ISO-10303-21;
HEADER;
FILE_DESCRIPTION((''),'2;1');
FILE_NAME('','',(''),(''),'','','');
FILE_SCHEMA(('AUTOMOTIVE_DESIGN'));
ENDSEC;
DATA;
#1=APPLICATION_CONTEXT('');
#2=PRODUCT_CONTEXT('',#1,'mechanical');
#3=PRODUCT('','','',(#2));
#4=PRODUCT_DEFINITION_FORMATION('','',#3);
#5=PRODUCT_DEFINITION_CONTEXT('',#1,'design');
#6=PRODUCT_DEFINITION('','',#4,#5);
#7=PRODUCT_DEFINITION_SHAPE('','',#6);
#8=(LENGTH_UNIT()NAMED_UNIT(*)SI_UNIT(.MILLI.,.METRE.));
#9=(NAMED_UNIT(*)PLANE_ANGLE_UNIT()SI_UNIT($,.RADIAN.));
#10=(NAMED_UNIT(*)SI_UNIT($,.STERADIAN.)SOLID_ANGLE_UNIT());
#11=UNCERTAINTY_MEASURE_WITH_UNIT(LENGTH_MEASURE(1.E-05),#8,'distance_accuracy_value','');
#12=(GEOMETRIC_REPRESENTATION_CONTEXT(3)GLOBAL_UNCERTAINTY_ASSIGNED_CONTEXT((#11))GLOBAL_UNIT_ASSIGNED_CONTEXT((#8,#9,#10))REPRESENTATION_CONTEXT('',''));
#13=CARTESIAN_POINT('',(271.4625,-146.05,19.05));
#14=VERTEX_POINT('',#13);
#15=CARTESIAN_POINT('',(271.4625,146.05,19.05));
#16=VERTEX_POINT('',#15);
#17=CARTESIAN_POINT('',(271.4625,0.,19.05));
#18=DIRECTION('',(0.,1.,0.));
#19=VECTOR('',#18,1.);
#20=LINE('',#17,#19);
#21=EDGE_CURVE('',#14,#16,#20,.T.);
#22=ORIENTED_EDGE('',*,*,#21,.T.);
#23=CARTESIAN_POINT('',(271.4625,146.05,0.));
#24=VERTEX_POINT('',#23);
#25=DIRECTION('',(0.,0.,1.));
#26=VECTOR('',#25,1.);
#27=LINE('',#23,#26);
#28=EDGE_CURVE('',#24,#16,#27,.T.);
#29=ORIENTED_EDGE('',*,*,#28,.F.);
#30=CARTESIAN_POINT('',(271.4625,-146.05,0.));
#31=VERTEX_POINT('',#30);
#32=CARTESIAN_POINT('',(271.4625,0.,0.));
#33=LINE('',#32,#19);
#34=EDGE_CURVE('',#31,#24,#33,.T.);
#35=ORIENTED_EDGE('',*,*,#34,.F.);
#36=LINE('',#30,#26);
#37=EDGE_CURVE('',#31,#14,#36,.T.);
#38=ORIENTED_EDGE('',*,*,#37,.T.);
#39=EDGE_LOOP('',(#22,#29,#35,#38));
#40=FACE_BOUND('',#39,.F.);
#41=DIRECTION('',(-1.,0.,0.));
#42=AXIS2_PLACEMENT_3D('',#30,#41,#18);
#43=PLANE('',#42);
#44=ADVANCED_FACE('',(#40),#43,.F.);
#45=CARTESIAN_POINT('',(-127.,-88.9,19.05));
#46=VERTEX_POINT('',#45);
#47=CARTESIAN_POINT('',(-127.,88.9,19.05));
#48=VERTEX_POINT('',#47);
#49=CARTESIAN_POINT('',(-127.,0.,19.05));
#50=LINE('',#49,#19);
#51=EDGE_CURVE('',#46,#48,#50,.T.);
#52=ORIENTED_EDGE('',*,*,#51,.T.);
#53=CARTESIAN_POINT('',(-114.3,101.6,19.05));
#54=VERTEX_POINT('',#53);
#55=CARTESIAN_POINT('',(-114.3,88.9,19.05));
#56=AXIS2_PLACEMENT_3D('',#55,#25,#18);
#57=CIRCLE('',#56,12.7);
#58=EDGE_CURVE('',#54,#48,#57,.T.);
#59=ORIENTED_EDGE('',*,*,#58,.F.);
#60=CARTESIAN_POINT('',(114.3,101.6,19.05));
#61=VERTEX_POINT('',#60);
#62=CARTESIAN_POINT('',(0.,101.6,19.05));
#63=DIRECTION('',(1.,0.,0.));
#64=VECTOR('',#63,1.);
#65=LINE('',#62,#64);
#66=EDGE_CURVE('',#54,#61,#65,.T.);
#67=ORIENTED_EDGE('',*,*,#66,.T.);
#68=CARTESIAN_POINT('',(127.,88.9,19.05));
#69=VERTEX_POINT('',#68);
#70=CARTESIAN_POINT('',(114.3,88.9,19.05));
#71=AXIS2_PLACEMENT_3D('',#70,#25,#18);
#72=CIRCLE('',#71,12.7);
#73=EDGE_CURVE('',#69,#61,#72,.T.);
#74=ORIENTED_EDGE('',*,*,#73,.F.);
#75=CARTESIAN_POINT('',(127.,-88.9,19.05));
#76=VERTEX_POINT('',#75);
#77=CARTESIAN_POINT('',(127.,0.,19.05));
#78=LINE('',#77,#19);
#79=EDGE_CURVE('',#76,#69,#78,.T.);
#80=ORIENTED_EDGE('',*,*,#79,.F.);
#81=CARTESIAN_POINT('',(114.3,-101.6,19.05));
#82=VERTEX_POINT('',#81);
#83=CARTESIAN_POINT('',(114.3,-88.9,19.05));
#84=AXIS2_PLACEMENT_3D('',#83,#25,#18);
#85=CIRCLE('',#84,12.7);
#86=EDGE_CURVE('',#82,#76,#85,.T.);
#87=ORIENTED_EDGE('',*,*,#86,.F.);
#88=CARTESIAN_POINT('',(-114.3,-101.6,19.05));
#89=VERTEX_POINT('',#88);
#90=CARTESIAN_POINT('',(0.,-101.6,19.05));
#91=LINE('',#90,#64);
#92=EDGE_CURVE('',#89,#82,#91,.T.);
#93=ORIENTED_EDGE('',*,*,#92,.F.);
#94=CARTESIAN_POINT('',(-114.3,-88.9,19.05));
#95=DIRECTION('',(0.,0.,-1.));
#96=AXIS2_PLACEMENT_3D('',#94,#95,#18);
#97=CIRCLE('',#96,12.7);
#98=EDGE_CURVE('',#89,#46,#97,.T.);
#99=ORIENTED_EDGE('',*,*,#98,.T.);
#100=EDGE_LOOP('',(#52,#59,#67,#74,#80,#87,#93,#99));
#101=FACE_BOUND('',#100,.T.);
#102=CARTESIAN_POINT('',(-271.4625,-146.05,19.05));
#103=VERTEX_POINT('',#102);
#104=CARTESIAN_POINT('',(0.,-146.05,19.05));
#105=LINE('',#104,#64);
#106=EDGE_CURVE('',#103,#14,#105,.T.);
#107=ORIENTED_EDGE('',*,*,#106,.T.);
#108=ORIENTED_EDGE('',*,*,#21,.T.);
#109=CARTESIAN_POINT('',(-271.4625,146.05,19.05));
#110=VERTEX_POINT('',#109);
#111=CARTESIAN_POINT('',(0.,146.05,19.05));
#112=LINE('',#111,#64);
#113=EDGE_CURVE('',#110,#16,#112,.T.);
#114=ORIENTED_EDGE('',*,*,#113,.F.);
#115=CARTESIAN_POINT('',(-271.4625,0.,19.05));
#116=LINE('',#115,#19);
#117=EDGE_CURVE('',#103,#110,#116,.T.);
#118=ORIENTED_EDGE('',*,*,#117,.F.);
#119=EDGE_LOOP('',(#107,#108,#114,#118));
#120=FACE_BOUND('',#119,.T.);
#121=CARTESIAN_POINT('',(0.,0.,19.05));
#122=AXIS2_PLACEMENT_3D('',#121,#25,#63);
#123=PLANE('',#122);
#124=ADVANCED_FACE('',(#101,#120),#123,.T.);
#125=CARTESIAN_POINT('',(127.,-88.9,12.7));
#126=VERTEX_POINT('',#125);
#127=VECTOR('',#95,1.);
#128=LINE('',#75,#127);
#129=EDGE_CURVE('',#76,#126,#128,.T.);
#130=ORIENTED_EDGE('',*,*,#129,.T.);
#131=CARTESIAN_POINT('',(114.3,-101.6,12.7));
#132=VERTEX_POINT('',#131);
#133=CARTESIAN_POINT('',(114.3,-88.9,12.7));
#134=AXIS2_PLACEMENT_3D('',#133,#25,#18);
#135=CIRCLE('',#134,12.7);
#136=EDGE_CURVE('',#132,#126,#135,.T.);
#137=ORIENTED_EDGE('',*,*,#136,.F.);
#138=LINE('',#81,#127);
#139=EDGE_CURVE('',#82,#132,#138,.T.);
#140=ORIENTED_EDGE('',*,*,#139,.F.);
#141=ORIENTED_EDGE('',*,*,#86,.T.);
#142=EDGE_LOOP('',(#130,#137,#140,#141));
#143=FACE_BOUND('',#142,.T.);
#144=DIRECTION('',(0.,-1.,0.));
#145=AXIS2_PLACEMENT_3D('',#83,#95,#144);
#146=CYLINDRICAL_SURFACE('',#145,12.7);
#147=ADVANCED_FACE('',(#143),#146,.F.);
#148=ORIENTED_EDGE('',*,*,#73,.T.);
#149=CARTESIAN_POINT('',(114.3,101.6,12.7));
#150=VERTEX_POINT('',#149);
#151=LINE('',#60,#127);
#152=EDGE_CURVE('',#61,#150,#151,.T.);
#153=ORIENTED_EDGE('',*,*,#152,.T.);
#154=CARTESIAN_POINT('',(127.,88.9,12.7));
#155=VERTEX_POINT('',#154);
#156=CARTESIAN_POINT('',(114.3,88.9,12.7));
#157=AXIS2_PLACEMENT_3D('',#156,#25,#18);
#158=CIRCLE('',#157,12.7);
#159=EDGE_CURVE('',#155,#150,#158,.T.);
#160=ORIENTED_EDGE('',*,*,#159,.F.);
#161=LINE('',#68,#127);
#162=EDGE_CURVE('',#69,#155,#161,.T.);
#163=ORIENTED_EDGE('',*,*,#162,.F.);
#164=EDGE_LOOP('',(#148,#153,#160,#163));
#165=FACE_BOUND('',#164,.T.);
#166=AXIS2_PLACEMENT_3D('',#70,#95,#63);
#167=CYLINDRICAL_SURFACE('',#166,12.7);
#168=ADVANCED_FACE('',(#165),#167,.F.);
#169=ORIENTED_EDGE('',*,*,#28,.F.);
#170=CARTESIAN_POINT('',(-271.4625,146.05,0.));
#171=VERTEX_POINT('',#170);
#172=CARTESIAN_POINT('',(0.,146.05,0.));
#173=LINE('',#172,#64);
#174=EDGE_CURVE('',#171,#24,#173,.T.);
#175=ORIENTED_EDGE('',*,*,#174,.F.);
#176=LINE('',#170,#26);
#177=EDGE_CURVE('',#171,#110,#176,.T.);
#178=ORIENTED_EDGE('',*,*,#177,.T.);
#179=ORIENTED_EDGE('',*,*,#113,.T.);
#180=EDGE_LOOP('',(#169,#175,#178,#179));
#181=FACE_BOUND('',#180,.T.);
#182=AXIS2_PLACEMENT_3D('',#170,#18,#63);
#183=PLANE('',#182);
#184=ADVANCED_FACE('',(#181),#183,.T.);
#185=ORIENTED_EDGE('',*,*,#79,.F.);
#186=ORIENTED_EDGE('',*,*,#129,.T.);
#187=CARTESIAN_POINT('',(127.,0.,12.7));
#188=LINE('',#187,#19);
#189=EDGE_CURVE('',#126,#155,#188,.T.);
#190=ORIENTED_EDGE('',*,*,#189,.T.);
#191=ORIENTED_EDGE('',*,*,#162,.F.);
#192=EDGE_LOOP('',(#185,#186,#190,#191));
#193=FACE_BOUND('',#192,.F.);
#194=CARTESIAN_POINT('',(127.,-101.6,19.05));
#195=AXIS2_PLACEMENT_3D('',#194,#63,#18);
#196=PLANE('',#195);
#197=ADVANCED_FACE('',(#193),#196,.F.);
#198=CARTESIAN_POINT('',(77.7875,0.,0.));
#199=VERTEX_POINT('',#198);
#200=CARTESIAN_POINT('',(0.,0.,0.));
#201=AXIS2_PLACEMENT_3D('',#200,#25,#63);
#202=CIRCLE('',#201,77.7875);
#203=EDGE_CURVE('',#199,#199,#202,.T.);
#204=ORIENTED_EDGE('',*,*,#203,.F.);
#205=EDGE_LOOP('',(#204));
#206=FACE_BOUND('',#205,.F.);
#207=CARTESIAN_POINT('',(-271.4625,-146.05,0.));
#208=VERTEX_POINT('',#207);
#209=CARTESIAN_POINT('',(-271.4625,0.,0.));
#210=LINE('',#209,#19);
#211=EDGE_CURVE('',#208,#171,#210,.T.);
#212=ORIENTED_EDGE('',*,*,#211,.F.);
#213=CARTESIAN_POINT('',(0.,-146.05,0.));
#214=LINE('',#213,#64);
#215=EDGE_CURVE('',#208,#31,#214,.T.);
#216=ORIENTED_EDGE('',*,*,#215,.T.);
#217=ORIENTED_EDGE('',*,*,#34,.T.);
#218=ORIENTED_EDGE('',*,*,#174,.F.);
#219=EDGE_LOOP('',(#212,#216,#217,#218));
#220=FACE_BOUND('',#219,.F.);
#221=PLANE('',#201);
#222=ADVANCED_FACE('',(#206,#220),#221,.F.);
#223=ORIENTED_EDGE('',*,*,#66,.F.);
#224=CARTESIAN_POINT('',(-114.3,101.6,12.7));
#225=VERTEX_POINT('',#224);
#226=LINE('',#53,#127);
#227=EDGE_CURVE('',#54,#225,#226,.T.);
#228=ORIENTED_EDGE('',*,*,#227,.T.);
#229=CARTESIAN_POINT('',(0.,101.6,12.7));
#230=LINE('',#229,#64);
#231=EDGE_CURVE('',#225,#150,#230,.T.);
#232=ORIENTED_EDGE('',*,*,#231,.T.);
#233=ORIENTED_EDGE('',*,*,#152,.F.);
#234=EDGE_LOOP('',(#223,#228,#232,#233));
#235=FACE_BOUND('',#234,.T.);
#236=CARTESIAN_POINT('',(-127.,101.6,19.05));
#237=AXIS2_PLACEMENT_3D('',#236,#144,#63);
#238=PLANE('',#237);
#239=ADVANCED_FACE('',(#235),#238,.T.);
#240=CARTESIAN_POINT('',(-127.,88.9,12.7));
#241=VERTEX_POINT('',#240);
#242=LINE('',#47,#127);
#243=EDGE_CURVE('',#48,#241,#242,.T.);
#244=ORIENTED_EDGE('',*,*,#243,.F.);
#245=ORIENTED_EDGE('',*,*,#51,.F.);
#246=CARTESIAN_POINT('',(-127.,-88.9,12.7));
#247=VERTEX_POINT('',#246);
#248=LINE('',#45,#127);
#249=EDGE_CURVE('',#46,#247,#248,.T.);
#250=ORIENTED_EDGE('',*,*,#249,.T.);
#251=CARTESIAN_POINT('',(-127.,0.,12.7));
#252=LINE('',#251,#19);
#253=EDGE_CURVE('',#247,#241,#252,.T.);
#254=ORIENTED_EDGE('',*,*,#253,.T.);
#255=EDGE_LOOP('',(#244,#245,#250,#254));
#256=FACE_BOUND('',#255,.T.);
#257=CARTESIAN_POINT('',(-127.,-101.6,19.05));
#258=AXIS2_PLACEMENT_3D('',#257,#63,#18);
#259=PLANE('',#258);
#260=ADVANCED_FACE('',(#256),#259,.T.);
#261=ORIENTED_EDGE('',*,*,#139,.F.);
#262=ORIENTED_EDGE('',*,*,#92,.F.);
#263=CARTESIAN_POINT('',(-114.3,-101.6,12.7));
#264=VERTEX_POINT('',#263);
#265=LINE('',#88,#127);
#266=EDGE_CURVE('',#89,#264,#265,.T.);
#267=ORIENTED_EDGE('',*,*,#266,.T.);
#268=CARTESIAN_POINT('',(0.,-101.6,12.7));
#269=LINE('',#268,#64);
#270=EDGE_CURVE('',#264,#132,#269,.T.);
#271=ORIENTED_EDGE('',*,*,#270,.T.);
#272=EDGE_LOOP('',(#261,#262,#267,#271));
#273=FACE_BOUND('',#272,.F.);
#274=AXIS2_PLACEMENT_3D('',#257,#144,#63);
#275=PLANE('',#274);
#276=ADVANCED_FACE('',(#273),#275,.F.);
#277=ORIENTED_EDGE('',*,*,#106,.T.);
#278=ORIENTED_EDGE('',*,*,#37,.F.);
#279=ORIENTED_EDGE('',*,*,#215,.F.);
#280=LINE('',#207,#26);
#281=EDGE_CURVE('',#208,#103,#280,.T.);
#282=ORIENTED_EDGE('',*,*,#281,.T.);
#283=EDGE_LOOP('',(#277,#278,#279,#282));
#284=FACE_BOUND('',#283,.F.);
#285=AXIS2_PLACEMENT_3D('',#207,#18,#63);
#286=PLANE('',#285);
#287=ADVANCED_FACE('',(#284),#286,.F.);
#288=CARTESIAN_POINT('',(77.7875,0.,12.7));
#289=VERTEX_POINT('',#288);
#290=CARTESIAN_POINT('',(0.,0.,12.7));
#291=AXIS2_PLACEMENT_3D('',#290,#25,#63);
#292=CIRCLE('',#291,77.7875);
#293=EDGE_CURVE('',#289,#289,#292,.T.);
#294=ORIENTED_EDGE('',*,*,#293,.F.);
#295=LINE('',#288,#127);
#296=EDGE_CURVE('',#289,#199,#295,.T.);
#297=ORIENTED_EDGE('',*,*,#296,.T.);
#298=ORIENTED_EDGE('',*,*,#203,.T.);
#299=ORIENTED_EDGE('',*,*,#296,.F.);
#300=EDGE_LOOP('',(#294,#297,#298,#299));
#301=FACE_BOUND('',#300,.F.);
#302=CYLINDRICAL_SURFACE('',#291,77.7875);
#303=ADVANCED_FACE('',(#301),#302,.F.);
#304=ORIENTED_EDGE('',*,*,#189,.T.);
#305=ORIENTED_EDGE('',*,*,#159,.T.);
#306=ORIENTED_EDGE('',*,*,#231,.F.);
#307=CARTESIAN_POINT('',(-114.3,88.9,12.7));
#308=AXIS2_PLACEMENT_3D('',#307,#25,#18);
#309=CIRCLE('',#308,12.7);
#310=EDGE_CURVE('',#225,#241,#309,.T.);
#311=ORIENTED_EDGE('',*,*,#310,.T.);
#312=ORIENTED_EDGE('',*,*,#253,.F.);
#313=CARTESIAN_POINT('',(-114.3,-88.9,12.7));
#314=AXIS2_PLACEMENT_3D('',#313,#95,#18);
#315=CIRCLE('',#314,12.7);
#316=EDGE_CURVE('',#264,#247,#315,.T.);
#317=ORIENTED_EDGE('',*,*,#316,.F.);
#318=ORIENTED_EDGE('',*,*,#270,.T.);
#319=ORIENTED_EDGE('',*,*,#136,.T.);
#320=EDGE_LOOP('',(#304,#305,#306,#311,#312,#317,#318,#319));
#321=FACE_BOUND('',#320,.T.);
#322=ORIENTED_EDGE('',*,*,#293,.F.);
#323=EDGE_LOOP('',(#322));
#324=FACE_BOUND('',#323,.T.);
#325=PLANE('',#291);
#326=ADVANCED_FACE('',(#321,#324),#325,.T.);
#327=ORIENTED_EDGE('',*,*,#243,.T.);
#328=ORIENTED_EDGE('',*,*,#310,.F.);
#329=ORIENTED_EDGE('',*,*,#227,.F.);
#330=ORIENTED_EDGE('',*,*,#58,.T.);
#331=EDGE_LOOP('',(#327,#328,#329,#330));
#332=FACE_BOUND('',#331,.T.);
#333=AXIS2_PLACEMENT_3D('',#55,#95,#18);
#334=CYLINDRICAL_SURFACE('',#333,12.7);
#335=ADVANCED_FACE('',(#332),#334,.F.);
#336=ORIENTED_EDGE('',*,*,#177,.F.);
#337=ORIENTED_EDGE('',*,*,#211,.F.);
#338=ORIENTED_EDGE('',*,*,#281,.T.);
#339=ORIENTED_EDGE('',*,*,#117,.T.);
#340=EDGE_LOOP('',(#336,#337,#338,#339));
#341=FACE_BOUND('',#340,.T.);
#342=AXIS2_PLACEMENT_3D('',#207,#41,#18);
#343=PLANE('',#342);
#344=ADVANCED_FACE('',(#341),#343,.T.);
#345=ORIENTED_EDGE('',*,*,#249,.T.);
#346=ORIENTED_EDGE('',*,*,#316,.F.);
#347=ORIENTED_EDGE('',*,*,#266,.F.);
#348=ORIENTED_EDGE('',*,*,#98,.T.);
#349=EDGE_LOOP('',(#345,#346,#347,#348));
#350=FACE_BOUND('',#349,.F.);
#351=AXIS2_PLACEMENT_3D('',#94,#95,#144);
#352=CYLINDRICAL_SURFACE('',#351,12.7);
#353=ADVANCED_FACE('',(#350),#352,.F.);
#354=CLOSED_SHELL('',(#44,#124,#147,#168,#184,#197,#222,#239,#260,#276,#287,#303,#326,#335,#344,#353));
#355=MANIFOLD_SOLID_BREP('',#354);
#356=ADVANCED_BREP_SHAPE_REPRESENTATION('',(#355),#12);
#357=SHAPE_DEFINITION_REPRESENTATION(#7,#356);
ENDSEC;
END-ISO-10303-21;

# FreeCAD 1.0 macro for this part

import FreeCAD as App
import Part
import Sketcher

V = App.Vector
Q = App.Units.Quantity


def edges_at(feature, points):
    """Names of the edges that pass closest to the given points."""
    edges = feature.Shape.Edges
    near = lambda p: min(range(len(edges)), key=lambda i: edges[i].distToShape(Part.Vertex(*p))[0])
    return sorted({f"Edge{near(p) + 1}" for p in points})


def add_polygon(sketch, points):
    """Adds a closed chain of lines whose ends are joined by coincident constraints."""
    first, n = sketch.GeometryCount, len(points)
    for a, b in zip(points, points[1:] + points[:1]):
        sketch.addGeometry(Part.LineSegment(App.Vector(*a, 0), App.Vector(*b, 0)), False)
    for i in range(n):
        sketch.addConstraint(Sketcher.Constraint("Coincident", first + i, 2, first + (i + 1) % n, 1))

doc = App.newDocument("Part")
body = doc.addObject("PartDesign::Body", "Body")

# Sketch on XY plane
sketch1 = body.newObject("Sketcher::SketchObject", "Sketch")
sketch1.AttachmentSupport = (doc.getObject("XY_Plane"), [""])
sketch1.MapMode = "FlatFace"
add_polygon(sketch1, [(-271.4625, 146.05), (-271.4625, -146.05), (271.4625, -146.05), (271.4625, 146.05)])  # lines 0-3
sketch1.addConstraint(Sketcher.Constraint("Vertical", 0))
sketch1.addConstraint(Sketcher.Constraint("Horizontal", 1))
sketch1.addConstraint(Sketcher.Constraint("Vertical", 2))
sketch1.addConstraint(Sketcher.Constraint("Horizontal", 3))
sketch1.addConstraint(Sketcher.Constraint("Symmetric", 0, 2, 2, 2, -1, 1))
sketch1.addConstraint(Sketcher.Constraint("DistanceY", 0, 2, 0, 1, Q("11.5 in")))
sketch1.addConstraint(Sketcher.Constraint("DistanceX", 1, 1, 1, 2, Q("21.375 in")))
pad1 = body.newObject("PartDesign::Pad", "Pad")
pad1.Profile = sketch1
pad1.Length = Q("0.75 in")

# Sketch on XY plane
sketch2 = body.newObject("Sketcher::SketchObject", "Sketch001")
sketch2.AttachmentSupport = (doc.getObject("XY_Plane"), [""])
sketch2.MapMode = "FlatFace"
sketch2.AttachmentOffset = App.Placement(V(0, 0, 0.75 * 25.4), App.Rotation())
add_polygon(sketch2, [(-127, 101.6), (-127, -101.6), (127, -101.6), (127, 101.6)])  # lines 0-3
sketch2.addConstraint(Sketcher.Constraint("Vertical", 0))
sketch2.addConstraint(Sketcher.Constraint("Horizontal", 1))
sketch2.addConstraint(Sketcher.Constraint("Vertical", 2))
sketch2.addConstraint(Sketcher.Constraint("Horizontal", 3))
sketch2.addConstraint(Sketcher.Constraint("Symmetric", 0, 2, 2, 2, -1, 1))
sketch2.addConstraint(Sketcher.Constraint("DistanceX", 1, 1, 1, 2, Q("10 in")))
sketch2.addConstraint(Sketcher.Constraint("DistanceY", 0, 2, 0, 1, Q("8 in")))
pocket1 = body.newObject("PartDesign::Pocket", "Pocket")
pocket1.Profile = sketch2
pocket1.Length = Q("0.25 in")
doc.recompute()

fillet = body.newObject("PartDesign::Fillet", "Fillet")
fillet.Base = (pocket1, edges_at(pocket1, [
    (127, -101.6, 15.875),
    (-127, -101.6, 15.875),
    (-127, 101.6, 15.875),
    (127, 101.6, 15.875),
]))
fillet.Radius = Q("0.5 in")

# Sketch on XY plane
sketch3 = body.newObject("Sketcher::SketchObject", "Sketch002")
sketch3.AttachmentSupport = (doc.getObject("XY_Plane"), [""])
sketch3.MapMode = "FlatFace"
sketch3.AttachmentOffset = App.Placement(V(0, 0, 0.5 * 25.4), App.Rotation())
sketch3.addGeometry(Part.Circle(V(0, 0, 0), V(0, 0, 1), 77.7875), False)
sketch3.addConstraint(Sketcher.Constraint("Coincident", 0, 3, -1, 1))
sketch3.addConstraint(Sketcher.Constraint("Diameter", 0, Q("6.125 in")))
pocket2 = body.newObject("PartDesign::Pocket", "Pocket001")
pocket2.Profile = sketch3
pocket2.Type = "ThroughAll"

doc.recompute()
